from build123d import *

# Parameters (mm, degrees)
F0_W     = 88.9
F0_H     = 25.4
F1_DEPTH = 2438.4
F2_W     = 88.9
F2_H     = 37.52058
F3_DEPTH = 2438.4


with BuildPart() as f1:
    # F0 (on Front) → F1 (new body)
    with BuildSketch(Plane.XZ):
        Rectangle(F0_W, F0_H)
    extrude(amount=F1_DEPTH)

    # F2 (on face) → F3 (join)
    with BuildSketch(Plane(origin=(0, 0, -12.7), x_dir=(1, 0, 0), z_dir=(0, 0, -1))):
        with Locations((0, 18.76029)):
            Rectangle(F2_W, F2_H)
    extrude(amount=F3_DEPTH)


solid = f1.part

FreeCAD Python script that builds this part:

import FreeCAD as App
import Part
import Sketcher
Q = App.Units.Quantity

doc = App.newDocument("Part")
body = doc.addObject("PartDesign::Body", "Body")

# Sketch on XZ plane
sketch1 = body.newObject("Sketcher::SketchObject", "Sketch")
sketch1.AttachmentSupport = (doc.getObject("XZ_Plane"), [""])
sketch1.MapMode = "FlatFace"
sketch1.addGeometry([
    Part.LineSegment(App.Vector(-44, 13, 0), App.Vector(-44, -13, 0)),
    Part.LineSegment(App.Vector(-44, -13, 0), App.Vector(44, -13, 0)),
    Part.LineSegment(App.Vector(44, -13, 0), App.Vector(44, 13, 0)),
    Part.LineSegment(App.Vector(44, 13, 0), App.Vector(-44, 13, 0)),
], False)
sketch1.addConstraint([
    Sketcher.Constraint("Coincident", 0, 2, 1, 1),
    Sketcher.Constraint("Coincident", 1, 2, 2, 1),
    Sketcher.Constraint("Coincident", 2, 2, 3, 1),
    Sketcher.Constraint("Coincident", 3, 2, 0, 1),
    Sketcher.Constraint("Vertical", 0),
    Sketcher.Constraint("Horizontal", 1),
    Sketcher.Constraint("Vertical", 2),
    Sketcher.Constraint("Horizontal", 3),
    Sketcher.Constraint("Symmetric", 0, 2, 2, 2, -1, 1),
    Sketcher.Constraint("DistanceY", 0, 2, 0, 1, Q("1 in")),
    Sketcher.Constraint("DistanceX", 1, 1, 1, 2, Q("3.5 in")),
])
pad1 = body.newObject("PartDesign::Pad", "Pad")
pad1.Profile = sketch1
pad1.Length = Q("96 in")

# Sketch on XY plane
sketch2 = body.newObject("Sketcher::SketchObject", "Sketch001")
sketch2.AttachmentSupport = (doc.getObject("XY_Plane"), [""])
sketch2.MapMode = "FlatFace"
sketch2.AttachmentOffset = App.Placement(App.Vector(0, 0, -0.5 * 25.4), App.Rotation())
sketch2.addGeometry([
    Part.LineSegment(App.Vector(-44, -38, 0), App.Vector(-44, 0, 0)),
    Part.LineSegment(App.Vector(-44, 0, 0), App.Vector(44, 0, 0)),
    Part.LineSegment(App.Vector(44, 0, 0), App.Vector(44, -38, 0)),
    Part.LineSegment(App.Vector(44, -38, 0), App.Vector(-44, -38, 0)),
], False)
sketch2.addConstraint([
    Sketcher.Constraint("Coincident", 0, 2, 1, 1),
    Sketcher.Constraint("Coincident", 1, 2, 2, 1),
    Sketcher.Constraint("Coincident", 2, 2, 3, 1),
    Sketcher.Constraint("Coincident", 3, 2, 0, 1),
    Sketcher.Constraint("Vertical", 0),
    Sketcher.Constraint("Horizontal", 1),
    Sketcher.Constraint("Vertical", 2),
    Sketcher.Constraint("Horizontal", 3),
    Sketcher.Constraint("Symmetric", 0, 2, 1, 2, -1, 1),
    Sketcher.Constraint("DistanceX", 1, 1, 1, 2, Q("3.5 in")),
    Sketcher.Constraint("DistanceY", 0, 1, 0, 2, 37.52058),
])
pad2 = body.newObject("PartDesign::Pad", "Pad001")
pad2.Profile = sketch2
pad2.Length = Q("96 in")
pad2.Reversed = True

doc.recompute()
